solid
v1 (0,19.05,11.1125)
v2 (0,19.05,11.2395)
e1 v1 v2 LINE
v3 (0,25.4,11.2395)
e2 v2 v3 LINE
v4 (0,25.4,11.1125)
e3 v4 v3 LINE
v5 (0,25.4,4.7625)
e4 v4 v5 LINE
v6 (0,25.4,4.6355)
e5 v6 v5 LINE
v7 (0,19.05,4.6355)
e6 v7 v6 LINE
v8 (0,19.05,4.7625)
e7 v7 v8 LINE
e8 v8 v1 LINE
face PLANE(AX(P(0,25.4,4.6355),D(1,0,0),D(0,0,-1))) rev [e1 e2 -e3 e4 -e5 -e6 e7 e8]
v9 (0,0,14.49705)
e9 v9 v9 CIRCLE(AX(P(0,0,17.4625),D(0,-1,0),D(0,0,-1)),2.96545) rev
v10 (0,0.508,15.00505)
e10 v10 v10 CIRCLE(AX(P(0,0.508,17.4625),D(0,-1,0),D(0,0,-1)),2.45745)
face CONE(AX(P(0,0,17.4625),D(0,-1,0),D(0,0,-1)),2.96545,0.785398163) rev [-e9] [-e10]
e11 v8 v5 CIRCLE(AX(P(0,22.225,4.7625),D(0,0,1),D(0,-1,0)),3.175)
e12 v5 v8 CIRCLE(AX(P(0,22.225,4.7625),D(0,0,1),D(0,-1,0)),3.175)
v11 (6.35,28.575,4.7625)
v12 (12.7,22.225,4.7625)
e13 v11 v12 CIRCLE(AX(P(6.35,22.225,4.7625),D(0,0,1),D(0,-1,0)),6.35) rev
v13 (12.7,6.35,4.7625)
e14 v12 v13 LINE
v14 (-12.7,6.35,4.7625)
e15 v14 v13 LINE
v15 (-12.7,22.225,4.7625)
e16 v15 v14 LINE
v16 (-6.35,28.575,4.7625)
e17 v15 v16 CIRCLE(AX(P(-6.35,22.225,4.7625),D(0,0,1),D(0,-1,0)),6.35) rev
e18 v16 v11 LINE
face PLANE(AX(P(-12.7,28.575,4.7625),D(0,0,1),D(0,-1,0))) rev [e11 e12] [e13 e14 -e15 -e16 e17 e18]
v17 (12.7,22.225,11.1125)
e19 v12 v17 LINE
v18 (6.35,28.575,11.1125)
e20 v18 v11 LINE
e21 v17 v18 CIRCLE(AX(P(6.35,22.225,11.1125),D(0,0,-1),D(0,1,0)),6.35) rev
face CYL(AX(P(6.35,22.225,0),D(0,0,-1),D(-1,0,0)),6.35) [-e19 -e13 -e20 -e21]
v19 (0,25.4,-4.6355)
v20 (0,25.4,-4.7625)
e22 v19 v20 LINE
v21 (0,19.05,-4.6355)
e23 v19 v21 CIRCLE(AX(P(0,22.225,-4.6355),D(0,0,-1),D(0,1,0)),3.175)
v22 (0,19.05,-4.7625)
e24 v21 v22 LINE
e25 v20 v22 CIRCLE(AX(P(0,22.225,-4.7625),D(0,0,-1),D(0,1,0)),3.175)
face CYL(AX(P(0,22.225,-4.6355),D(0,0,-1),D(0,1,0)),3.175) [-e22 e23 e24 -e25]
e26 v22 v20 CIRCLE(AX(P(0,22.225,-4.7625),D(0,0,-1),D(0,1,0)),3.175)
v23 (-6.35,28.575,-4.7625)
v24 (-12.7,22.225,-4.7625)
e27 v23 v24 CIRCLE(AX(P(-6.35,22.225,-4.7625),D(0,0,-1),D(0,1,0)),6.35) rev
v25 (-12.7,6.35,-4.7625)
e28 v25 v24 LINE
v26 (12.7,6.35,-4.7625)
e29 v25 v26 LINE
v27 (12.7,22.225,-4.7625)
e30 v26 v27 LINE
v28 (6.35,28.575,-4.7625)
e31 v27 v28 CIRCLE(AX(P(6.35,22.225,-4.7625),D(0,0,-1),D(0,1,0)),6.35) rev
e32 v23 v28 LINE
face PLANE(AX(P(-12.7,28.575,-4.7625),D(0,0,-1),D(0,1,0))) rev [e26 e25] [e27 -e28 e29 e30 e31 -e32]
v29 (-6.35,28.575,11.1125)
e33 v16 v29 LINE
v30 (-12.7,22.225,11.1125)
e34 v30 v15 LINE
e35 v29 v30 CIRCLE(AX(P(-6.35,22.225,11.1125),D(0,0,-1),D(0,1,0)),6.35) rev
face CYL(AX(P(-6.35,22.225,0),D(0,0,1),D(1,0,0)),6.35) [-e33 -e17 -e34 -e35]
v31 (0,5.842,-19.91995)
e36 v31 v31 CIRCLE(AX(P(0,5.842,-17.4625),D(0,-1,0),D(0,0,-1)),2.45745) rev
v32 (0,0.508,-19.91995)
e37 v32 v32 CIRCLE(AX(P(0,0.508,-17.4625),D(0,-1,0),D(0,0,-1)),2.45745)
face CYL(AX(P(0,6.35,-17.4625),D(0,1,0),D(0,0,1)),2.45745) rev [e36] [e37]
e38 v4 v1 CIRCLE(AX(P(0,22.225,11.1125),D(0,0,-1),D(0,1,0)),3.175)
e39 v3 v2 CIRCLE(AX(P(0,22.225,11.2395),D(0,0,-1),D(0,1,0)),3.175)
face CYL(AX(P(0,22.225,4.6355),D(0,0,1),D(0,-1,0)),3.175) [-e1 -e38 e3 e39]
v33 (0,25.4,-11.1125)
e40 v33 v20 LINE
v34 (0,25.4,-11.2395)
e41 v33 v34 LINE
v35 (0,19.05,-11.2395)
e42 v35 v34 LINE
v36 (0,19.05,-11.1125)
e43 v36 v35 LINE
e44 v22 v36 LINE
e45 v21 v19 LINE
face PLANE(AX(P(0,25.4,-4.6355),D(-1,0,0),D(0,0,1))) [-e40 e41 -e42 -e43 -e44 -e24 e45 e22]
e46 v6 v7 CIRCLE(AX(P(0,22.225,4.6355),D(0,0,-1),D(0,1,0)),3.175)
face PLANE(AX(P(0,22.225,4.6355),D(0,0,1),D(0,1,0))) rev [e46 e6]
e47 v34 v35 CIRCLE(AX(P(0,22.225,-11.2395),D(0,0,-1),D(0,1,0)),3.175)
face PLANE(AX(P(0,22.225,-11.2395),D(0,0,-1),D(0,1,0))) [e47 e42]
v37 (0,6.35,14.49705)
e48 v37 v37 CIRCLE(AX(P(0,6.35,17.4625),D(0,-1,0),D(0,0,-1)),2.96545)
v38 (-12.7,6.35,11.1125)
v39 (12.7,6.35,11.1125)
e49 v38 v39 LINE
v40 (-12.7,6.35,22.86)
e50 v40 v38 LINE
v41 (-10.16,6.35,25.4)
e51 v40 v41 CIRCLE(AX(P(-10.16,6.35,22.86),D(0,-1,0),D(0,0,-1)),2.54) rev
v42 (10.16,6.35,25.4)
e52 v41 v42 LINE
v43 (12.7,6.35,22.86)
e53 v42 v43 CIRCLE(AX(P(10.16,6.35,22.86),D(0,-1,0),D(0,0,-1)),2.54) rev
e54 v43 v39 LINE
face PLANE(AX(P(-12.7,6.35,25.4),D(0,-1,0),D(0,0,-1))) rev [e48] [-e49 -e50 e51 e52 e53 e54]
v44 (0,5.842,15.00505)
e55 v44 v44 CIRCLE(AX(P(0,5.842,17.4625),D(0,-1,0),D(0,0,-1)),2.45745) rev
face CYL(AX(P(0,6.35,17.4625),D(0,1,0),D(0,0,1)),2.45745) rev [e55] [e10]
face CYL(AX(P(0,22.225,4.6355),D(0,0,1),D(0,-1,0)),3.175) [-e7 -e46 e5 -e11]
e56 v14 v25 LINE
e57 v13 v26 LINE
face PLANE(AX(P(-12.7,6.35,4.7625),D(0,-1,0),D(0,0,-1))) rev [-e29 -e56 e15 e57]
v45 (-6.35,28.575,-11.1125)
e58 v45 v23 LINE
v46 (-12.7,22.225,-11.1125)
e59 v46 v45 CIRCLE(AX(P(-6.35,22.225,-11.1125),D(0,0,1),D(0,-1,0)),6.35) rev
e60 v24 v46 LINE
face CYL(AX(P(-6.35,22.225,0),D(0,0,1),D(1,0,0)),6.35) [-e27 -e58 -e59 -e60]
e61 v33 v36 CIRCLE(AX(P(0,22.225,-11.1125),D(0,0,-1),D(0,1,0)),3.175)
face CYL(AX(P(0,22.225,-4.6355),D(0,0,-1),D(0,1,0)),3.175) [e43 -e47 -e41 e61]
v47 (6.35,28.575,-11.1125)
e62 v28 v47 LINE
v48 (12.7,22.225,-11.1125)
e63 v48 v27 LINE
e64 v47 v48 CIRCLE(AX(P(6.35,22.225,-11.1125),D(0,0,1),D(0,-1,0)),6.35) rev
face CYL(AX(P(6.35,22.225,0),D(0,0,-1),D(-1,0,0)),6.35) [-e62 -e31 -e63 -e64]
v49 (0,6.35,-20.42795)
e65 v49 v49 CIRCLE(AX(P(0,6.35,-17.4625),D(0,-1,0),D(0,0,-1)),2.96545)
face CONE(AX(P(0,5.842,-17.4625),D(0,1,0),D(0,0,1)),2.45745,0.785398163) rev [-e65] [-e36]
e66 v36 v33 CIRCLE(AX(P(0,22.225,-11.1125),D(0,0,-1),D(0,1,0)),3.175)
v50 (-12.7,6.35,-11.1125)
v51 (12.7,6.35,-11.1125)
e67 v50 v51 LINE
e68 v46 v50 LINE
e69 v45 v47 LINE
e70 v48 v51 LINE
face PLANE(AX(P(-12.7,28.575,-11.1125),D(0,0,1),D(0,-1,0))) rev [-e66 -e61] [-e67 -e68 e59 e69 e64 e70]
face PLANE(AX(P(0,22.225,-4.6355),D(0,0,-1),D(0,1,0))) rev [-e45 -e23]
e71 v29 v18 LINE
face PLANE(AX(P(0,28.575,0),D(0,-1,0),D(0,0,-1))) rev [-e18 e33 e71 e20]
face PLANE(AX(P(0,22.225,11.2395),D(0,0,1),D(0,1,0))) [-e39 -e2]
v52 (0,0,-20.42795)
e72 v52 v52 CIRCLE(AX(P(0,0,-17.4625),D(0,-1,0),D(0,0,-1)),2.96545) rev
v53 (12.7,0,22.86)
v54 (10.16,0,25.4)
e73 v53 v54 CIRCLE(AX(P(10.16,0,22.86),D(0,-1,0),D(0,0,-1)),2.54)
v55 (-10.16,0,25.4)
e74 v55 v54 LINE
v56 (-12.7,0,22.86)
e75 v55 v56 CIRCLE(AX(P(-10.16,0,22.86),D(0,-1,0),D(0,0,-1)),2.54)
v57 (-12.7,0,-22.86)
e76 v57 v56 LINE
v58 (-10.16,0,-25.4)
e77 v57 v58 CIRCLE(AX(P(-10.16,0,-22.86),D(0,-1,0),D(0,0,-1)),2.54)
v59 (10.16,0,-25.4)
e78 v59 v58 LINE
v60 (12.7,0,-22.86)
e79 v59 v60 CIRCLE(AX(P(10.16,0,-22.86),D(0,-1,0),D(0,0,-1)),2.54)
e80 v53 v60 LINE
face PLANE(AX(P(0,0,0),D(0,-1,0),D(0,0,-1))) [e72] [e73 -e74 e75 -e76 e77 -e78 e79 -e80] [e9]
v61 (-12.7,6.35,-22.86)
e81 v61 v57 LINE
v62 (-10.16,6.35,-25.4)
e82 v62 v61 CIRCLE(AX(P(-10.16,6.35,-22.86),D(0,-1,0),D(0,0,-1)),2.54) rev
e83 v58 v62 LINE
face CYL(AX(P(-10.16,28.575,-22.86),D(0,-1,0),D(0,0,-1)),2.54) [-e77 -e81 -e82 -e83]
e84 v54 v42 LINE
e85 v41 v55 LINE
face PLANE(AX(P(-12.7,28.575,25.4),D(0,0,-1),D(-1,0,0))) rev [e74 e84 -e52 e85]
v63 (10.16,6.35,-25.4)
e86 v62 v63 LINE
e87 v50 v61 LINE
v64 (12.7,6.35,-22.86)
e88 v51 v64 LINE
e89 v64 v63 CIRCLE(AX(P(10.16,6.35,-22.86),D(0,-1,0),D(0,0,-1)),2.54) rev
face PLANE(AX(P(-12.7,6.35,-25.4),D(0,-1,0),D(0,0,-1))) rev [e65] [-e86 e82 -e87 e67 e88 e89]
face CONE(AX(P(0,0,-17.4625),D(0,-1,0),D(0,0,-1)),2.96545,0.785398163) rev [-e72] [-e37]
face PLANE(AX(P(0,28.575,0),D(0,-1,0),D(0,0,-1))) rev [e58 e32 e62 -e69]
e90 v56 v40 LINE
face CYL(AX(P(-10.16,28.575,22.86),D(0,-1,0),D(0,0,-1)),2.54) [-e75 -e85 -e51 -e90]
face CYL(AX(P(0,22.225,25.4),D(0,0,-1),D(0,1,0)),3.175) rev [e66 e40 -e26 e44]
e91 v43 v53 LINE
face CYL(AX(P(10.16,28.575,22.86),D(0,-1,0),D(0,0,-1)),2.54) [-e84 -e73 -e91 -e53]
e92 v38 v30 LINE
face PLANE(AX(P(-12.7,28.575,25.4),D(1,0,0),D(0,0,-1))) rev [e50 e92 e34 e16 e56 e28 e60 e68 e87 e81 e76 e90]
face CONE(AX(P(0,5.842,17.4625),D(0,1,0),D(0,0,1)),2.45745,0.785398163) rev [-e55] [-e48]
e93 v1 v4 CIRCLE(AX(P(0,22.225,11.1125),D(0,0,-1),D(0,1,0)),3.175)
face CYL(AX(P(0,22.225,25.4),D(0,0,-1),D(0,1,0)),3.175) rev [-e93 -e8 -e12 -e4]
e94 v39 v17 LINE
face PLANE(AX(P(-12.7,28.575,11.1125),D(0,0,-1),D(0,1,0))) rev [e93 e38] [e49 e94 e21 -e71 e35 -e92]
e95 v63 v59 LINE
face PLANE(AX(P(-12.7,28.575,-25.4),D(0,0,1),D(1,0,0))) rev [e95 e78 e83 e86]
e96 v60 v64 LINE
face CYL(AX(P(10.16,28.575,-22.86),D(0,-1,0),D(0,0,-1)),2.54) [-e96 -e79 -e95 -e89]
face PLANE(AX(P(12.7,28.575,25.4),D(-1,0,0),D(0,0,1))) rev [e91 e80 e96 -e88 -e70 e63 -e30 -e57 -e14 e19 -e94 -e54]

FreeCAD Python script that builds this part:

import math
import FreeCAD as App
import Part
import Sketcher

V = App.Vector
Q = App.Units.Quantity


def edges_at(feature, points):
    """Names of the edges that pass closest to the given points."""
    edges = feature.Shape.Edges
    near = lambda p: min(range(len(edges)), key=lambda i: edges[i].distToShape(Part.Vertex(*p))[0])
    return sorted({f"Edge{near(p) + 1}" for p in points})

doc = App.newDocument("Part")
body = doc.addObject("PartDesign::Body", "Body")

# Sketch on XZ plane
sketch1 = body.newObject("Sketcher::SketchObject", "Sketch")
sketch1.AttachmentSupport = (doc.getObject("XZ_Plane"), [""])
sketch1.MapMode = "FlatFace"
sketch1.addGeometry([
    Part.LineSegment(V(-12.7, -25.4, 0), V(-12.7, 25.4, 0)),
    Part.LineSegment(V(-12.7, 25.4, 0), V(12.7, 25.4, 0)),
    Part.LineSegment(V(12.7, 25.4, 0), V(12.7, -25.4, 0)),
    Part.LineSegment(V(12.7, -25.4, 0), V(-12.7, -25.4, 0)),
], False)
sketch1.addConstraint([
    Sketcher.Constraint("Coincident", 0, 2, 1, 1),
    Sketcher.Constraint("Coincident", 1, 2, 2, 1),
    Sketcher.Constraint("Coincident", 2, 2, 3, 1),
    Sketcher.Constraint("Coincident", 3, 2, 0, 1),
    Sketcher.Constraint("Vertical", 0),
    Sketcher.Constraint("Horizontal", 1),
    Sketcher.Constraint("Vertical", 2),
    Sketcher.Constraint("Horizontal", 3),
    Sketcher.Constraint("Symmetric", 0, 2, 2, 2, -1, 1),
    Sketcher.Constraint("DistanceX", 1, 1, 1, 2, Q("1 in")),
    Sketcher.Constraint("DistanceY", 0, 1, 0, 2, Q("2 in")),
])
pad1 = body.newObject("PartDesign::Pad", "Pad")
pad1.Profile = sketch1
pad1.Length = Q("1.125 in")
pad1.Reversed = True

# Sketch on YZ plane
sketch2 = body.newObject("Sketcher::SketchObject", "Sketch001")
sketch2.AttachmentSupport = (doc.getObject("YZ_Plane"), [""])
sketch2.MapMode = "FlatFace"
sketch2.AttachmentOffset = App.Placement(V(0, 0, 0.5 * 25.4), App.Rotation())
sketch2.addGeometry([
    Part.LineSegment(V(28.575, 25.4, 0), V(6.35, 25.4, 0)),  # 0
    Part.LineSegment(V(6.35, 25.4, 0), V(6.35, 11.1125, 0)),  # 1
    Part.LineSegment(V(6.35, 11.1125, 0), V(28.575, 11.1125, 0)),  # 2
    Part.LineSegment(V(28.575, 11.1125, 0), V(28.575, 25.4, 0)),  # 3
    Part.LineSegment(V(28.575, -11.1125, 0), V(6.35, -11.1125, 0)),  # 4
    Part.LineSegment(V(6.35, -11.1125, 0), V(6.35, -25.4, 0)),  # 5
    Part.LineSegment(V(6.35, -25.4, 0), V(28.575, -25.4, 0)),  # 6
    Part.LineSegment(V(28.575, -25.4, 0), V(28.575, -11.1125, 0)),  # 7
    Part.LineSegment(V(28.575, 4.7625, 0), V(6.35, 4.7625, 0)),  # 8
    Part.LineSegment(V(6.35, 4.7625, 0), V(6.35, -4.7625, 0)),  # 9
    Part.LineSegment(V(6.35, -4.7625, 0), V(28.575, -4.7625, 0)),  # 10
    Part.LineSegment(V(28.575, -4.7625, 0), V(28.575, 4.7625, 0)),  # 11
], False)
sketch2.addConstraint([
    Sketcher.Constraint("Coincident", 0, 2, 1, 1),
    Sketcher.Constraint("Coincident", 1, 2, 2, 1),
    Sketcher.Constraint("Coincident", 2, 2, 3, 1),
    Sketcher.Constraint("Coincident", 3, 2, 0, 1),
    Sketcher.Constraint("Coincident", 4, 2, 5, 1),
    Sketcher.Constraint("Coincident", 5, 2, 6, 1),
    Sketcher.Constraint("Coincident", 6, 2, 7, 1),
    Sketcher.Constraint("Coincident", 7, 2, 4, 1),
    Sketcher.Constraint("Coincident", 8, 2, 9, 1),
    Sketcher.Constraint("Coincident", 9, 2, 10, 1),
    Sketcher.Constraint("Coincident", 10, 2, 11, 1),
    Sketcher.Constraint("Coincident", 11, 2, 8, 1),
    Sketcher.Constraint("Horizontal", 0),
    Sketcher.Constraint("Vertical", 1),
    Sketcher.Constraint("Horizontal", 2),
    Sketcher.Constraint("Vertical", 3),
    Sketcher.Constraint("Horizontal", 4),
    Sketcher.Constraint("Vertical", 5),
    Sketcher.Constraint("Horizontal", 6),
    Sketcher.Constraint("Vertical", 7),
    Sketcher.Constraint("Horizontal", 8),
    Sketcher.Constraint("Vertical", 9),
    Sketcher.Constraint("Horizontal", 10),
    Sketcher.Constraint("Vertical", 11),
    Sketcher.Constraint("Symmetric", 1, 2, 4, 2, -1),
    Sketcher.Constraint("Symmetric", 3, 2, 6, 2, -1),
    Sketcher.Constraint("Vertical", 5, 2, 8, 2),
    Sketcher.Constraint("Vertical", 7, 2, 10, 2),
    Sketcher.Constraint("DistanceY", -1, 1, 0, 2, Q("1 in")),
    Sketcher.Constraint("DistanceX", 0, 2, 0, 1, Q("0.875 in")),
    Sketcher.Constraint("DistanceY", 1, 2, 1, 1, Q("0.5625 in")),
    Sketcher.Constraint("DistanceY", 9, 2, 9, 1, Q("0.375 in")),
    Sketcher.Constraint("DistanceX", -1, 1, 0, 2, Q("0.25 in")),
    Sketcher.Constraint("DistanceY", 8, 2, 1, 2, Q("0.25 in")),
])
pocket1 = body.newObject("PartDesign::Pocket", "Pocket")
pocket1.Profile = sketch2
pocket1.Type = "ThroughAll"

# Sketch on XZ plane
sketch3 = body.newObject("Sketcher::SketchObject", "Sketch002")
sketch3.AttachmentSupport = (doc.getObject("XZ_Plane"), [""])
sketch3.MapMode = "FlatFace"
sketch3.AttachmentOffset = App.Placement(V(0, 0, -0.25 * 25.4), App.Rotation())
sketch3.addGeometry([
    Part.Circle(V(0, 17.4625, 0), V(0, 0, 1), 2.45745),
    Part.Circle(V(0, -17.4625, 0), V(0, 0, 1), 2.45745),
], False)
sketch3.addConstraint([
    Sketcher.Constraint("Equal", 0, 1),
    Sketcher.Constraint("Symmetric", 0, 3, 1, 3, -1, 1),
    Sketcher.Constraint("PointOnObject", 0, 3, -2),
    Sketcher.Constraint("Diameter", 0, Q("0.1935 in")),
    Sketcher.Constraint("DistanceY", -1, 1, 0, 3, Q("0.6875 in")),
])
doc.recompute()
hole = body.newObject("PartDesign::Hole", "Hole")
hole.Profile = sketch3
hole.ThreadType = "None"
hole.Diameter = Q("0.1935 in")
hole.DepthType = "Dimension"
hole.Depth = Q("0.25 in")
hole.DrillPoint = "Angled"
hole.DrillPointAngle = 118
hole.Reversed = True

# Sketch on XY plane
sketch4 = body.newObject("Sketcher::SketchObject", "Sketch003")
sketch4.AttachmentSupport = (doc.getObject("XY_Plane"), [""])
sketch4.MapMode = "FlatFace"
sketch4.AttachmentOffset = App.Placement(V(0, 0, -0.4375 * 25.4), App.Rotation())
sketch4.addGeometry(Part.Circle(V(0, 22.225, 0), V(0, 0, 1), 3.175), False)
sketch4.addConstraint([
    Sketcher.Constraint("PointOnObject", 0, 3, -2),
    Sketcher.Constraint("Diameter", 0, Q("0.25 in")),
    Sketcher.Constraint("DistanceY", -1, 1, 0, 3, Q("0.875 in")),
])
pocket2 = body.newObject("PartDesign::Pocket", "Pocket001")
pocket2.Profile = sketch4
pocket2.Type = "ThroughAll"
pocket2.Reversed = True
doc.recompute()

fillet = body.newObject("PartDesign::Fillet", "Fillet")
fillet.Base = (pocket2, edges_at(pocket2, [
    (12.7, 28.575, 7.938),
    (-12.7, 28.575, -7.938),
    (-12.7, 28.575, 7.938),
    (12.7, 28.575, -7.938),
]))
fillet.Radius = Q("0.25 in")
doc.recompute()

fillet2 = body.newObject("PartDesign::Fillet", "Fillet001")
fillet2.Base = (fillet, edges_at(fillet, [
    (12.7, 3.175, 25.4),
    (-12.7, 3.175, 25.4),
    (-12.7, 3.175, -25.4),
    (12.7, 3.175, -25.4),
]))
fillet2.Radius = Q("0.1 in")
doc.recompute()

chamfer = body.newObject("PartDesign::Chamfer", "Chamfer")
chamfer.Base = (fillet2, edges_at(fillet2, [
    (2.457, 6.35, -17.462),
    (2.457, 0, -17.462),
    (2.457, 6.35, 17.462),
    (2.457, 0, 17.462),
]))
chamfer.Size = Q("0.02 in")

# Sketch on XY plane
sketch5 = body.newObject("Sketcher::SketchObject", "Sketch004")
sketch5.AttachmentSupport = (doc.getObject("XY_Plane"), [""])
sketch5.MapMode = "FlatFace"
sketch5.AttachmentOffset = App.Placement(V(0, 0, -0.3125 * 25.4), App.Rotation())
sketch5.addGeometry([
    Part.LineSegment(V(0, 19.05, 0), V(0, 25.4, 0)),
    Part.ArcOfCircle(Part.Circle(V(0, 22.225, 0), V(0, 0, 1), 3.175), math.radians(-90), math.radians(90)),
], False)
sketch5.addConstraint([
    Sketcher.Constraint("Coincident", 0, 1, 1, 1),
    Sketcher.Constraint("Coincident", 1, 2, 0, 2),
    Sketcher.Constraint("Vertical", 0),
    Sketcher.Constraint("PointOnObject", 1, 3, -2),
    Sketcher.Constraint("PointOnObject", 0, 1, -2),
    Sketcher.Constraint("DistanceY", -1, 1, 1, 2, Q("1 in")),
    Sketcher.Constraint("Radius", 1, Q("0.125 in")),
])
pad2 = body.newObject("PartDesign::Pad", "Pad001")
pad2.Profile = sketch5
pad2.Length = Q("0.26 in")
pad2.Midplane = True
doc.recompute()

mirrored = body.newObject("PartDesign::Mirrored", "Mirrored")
mirrored.Originals = [pad2]
mirrored.MirrorPlane = (doc.getObject("XY_Plane"), [""])
body.Tip = mirrored

doc.recompute()
